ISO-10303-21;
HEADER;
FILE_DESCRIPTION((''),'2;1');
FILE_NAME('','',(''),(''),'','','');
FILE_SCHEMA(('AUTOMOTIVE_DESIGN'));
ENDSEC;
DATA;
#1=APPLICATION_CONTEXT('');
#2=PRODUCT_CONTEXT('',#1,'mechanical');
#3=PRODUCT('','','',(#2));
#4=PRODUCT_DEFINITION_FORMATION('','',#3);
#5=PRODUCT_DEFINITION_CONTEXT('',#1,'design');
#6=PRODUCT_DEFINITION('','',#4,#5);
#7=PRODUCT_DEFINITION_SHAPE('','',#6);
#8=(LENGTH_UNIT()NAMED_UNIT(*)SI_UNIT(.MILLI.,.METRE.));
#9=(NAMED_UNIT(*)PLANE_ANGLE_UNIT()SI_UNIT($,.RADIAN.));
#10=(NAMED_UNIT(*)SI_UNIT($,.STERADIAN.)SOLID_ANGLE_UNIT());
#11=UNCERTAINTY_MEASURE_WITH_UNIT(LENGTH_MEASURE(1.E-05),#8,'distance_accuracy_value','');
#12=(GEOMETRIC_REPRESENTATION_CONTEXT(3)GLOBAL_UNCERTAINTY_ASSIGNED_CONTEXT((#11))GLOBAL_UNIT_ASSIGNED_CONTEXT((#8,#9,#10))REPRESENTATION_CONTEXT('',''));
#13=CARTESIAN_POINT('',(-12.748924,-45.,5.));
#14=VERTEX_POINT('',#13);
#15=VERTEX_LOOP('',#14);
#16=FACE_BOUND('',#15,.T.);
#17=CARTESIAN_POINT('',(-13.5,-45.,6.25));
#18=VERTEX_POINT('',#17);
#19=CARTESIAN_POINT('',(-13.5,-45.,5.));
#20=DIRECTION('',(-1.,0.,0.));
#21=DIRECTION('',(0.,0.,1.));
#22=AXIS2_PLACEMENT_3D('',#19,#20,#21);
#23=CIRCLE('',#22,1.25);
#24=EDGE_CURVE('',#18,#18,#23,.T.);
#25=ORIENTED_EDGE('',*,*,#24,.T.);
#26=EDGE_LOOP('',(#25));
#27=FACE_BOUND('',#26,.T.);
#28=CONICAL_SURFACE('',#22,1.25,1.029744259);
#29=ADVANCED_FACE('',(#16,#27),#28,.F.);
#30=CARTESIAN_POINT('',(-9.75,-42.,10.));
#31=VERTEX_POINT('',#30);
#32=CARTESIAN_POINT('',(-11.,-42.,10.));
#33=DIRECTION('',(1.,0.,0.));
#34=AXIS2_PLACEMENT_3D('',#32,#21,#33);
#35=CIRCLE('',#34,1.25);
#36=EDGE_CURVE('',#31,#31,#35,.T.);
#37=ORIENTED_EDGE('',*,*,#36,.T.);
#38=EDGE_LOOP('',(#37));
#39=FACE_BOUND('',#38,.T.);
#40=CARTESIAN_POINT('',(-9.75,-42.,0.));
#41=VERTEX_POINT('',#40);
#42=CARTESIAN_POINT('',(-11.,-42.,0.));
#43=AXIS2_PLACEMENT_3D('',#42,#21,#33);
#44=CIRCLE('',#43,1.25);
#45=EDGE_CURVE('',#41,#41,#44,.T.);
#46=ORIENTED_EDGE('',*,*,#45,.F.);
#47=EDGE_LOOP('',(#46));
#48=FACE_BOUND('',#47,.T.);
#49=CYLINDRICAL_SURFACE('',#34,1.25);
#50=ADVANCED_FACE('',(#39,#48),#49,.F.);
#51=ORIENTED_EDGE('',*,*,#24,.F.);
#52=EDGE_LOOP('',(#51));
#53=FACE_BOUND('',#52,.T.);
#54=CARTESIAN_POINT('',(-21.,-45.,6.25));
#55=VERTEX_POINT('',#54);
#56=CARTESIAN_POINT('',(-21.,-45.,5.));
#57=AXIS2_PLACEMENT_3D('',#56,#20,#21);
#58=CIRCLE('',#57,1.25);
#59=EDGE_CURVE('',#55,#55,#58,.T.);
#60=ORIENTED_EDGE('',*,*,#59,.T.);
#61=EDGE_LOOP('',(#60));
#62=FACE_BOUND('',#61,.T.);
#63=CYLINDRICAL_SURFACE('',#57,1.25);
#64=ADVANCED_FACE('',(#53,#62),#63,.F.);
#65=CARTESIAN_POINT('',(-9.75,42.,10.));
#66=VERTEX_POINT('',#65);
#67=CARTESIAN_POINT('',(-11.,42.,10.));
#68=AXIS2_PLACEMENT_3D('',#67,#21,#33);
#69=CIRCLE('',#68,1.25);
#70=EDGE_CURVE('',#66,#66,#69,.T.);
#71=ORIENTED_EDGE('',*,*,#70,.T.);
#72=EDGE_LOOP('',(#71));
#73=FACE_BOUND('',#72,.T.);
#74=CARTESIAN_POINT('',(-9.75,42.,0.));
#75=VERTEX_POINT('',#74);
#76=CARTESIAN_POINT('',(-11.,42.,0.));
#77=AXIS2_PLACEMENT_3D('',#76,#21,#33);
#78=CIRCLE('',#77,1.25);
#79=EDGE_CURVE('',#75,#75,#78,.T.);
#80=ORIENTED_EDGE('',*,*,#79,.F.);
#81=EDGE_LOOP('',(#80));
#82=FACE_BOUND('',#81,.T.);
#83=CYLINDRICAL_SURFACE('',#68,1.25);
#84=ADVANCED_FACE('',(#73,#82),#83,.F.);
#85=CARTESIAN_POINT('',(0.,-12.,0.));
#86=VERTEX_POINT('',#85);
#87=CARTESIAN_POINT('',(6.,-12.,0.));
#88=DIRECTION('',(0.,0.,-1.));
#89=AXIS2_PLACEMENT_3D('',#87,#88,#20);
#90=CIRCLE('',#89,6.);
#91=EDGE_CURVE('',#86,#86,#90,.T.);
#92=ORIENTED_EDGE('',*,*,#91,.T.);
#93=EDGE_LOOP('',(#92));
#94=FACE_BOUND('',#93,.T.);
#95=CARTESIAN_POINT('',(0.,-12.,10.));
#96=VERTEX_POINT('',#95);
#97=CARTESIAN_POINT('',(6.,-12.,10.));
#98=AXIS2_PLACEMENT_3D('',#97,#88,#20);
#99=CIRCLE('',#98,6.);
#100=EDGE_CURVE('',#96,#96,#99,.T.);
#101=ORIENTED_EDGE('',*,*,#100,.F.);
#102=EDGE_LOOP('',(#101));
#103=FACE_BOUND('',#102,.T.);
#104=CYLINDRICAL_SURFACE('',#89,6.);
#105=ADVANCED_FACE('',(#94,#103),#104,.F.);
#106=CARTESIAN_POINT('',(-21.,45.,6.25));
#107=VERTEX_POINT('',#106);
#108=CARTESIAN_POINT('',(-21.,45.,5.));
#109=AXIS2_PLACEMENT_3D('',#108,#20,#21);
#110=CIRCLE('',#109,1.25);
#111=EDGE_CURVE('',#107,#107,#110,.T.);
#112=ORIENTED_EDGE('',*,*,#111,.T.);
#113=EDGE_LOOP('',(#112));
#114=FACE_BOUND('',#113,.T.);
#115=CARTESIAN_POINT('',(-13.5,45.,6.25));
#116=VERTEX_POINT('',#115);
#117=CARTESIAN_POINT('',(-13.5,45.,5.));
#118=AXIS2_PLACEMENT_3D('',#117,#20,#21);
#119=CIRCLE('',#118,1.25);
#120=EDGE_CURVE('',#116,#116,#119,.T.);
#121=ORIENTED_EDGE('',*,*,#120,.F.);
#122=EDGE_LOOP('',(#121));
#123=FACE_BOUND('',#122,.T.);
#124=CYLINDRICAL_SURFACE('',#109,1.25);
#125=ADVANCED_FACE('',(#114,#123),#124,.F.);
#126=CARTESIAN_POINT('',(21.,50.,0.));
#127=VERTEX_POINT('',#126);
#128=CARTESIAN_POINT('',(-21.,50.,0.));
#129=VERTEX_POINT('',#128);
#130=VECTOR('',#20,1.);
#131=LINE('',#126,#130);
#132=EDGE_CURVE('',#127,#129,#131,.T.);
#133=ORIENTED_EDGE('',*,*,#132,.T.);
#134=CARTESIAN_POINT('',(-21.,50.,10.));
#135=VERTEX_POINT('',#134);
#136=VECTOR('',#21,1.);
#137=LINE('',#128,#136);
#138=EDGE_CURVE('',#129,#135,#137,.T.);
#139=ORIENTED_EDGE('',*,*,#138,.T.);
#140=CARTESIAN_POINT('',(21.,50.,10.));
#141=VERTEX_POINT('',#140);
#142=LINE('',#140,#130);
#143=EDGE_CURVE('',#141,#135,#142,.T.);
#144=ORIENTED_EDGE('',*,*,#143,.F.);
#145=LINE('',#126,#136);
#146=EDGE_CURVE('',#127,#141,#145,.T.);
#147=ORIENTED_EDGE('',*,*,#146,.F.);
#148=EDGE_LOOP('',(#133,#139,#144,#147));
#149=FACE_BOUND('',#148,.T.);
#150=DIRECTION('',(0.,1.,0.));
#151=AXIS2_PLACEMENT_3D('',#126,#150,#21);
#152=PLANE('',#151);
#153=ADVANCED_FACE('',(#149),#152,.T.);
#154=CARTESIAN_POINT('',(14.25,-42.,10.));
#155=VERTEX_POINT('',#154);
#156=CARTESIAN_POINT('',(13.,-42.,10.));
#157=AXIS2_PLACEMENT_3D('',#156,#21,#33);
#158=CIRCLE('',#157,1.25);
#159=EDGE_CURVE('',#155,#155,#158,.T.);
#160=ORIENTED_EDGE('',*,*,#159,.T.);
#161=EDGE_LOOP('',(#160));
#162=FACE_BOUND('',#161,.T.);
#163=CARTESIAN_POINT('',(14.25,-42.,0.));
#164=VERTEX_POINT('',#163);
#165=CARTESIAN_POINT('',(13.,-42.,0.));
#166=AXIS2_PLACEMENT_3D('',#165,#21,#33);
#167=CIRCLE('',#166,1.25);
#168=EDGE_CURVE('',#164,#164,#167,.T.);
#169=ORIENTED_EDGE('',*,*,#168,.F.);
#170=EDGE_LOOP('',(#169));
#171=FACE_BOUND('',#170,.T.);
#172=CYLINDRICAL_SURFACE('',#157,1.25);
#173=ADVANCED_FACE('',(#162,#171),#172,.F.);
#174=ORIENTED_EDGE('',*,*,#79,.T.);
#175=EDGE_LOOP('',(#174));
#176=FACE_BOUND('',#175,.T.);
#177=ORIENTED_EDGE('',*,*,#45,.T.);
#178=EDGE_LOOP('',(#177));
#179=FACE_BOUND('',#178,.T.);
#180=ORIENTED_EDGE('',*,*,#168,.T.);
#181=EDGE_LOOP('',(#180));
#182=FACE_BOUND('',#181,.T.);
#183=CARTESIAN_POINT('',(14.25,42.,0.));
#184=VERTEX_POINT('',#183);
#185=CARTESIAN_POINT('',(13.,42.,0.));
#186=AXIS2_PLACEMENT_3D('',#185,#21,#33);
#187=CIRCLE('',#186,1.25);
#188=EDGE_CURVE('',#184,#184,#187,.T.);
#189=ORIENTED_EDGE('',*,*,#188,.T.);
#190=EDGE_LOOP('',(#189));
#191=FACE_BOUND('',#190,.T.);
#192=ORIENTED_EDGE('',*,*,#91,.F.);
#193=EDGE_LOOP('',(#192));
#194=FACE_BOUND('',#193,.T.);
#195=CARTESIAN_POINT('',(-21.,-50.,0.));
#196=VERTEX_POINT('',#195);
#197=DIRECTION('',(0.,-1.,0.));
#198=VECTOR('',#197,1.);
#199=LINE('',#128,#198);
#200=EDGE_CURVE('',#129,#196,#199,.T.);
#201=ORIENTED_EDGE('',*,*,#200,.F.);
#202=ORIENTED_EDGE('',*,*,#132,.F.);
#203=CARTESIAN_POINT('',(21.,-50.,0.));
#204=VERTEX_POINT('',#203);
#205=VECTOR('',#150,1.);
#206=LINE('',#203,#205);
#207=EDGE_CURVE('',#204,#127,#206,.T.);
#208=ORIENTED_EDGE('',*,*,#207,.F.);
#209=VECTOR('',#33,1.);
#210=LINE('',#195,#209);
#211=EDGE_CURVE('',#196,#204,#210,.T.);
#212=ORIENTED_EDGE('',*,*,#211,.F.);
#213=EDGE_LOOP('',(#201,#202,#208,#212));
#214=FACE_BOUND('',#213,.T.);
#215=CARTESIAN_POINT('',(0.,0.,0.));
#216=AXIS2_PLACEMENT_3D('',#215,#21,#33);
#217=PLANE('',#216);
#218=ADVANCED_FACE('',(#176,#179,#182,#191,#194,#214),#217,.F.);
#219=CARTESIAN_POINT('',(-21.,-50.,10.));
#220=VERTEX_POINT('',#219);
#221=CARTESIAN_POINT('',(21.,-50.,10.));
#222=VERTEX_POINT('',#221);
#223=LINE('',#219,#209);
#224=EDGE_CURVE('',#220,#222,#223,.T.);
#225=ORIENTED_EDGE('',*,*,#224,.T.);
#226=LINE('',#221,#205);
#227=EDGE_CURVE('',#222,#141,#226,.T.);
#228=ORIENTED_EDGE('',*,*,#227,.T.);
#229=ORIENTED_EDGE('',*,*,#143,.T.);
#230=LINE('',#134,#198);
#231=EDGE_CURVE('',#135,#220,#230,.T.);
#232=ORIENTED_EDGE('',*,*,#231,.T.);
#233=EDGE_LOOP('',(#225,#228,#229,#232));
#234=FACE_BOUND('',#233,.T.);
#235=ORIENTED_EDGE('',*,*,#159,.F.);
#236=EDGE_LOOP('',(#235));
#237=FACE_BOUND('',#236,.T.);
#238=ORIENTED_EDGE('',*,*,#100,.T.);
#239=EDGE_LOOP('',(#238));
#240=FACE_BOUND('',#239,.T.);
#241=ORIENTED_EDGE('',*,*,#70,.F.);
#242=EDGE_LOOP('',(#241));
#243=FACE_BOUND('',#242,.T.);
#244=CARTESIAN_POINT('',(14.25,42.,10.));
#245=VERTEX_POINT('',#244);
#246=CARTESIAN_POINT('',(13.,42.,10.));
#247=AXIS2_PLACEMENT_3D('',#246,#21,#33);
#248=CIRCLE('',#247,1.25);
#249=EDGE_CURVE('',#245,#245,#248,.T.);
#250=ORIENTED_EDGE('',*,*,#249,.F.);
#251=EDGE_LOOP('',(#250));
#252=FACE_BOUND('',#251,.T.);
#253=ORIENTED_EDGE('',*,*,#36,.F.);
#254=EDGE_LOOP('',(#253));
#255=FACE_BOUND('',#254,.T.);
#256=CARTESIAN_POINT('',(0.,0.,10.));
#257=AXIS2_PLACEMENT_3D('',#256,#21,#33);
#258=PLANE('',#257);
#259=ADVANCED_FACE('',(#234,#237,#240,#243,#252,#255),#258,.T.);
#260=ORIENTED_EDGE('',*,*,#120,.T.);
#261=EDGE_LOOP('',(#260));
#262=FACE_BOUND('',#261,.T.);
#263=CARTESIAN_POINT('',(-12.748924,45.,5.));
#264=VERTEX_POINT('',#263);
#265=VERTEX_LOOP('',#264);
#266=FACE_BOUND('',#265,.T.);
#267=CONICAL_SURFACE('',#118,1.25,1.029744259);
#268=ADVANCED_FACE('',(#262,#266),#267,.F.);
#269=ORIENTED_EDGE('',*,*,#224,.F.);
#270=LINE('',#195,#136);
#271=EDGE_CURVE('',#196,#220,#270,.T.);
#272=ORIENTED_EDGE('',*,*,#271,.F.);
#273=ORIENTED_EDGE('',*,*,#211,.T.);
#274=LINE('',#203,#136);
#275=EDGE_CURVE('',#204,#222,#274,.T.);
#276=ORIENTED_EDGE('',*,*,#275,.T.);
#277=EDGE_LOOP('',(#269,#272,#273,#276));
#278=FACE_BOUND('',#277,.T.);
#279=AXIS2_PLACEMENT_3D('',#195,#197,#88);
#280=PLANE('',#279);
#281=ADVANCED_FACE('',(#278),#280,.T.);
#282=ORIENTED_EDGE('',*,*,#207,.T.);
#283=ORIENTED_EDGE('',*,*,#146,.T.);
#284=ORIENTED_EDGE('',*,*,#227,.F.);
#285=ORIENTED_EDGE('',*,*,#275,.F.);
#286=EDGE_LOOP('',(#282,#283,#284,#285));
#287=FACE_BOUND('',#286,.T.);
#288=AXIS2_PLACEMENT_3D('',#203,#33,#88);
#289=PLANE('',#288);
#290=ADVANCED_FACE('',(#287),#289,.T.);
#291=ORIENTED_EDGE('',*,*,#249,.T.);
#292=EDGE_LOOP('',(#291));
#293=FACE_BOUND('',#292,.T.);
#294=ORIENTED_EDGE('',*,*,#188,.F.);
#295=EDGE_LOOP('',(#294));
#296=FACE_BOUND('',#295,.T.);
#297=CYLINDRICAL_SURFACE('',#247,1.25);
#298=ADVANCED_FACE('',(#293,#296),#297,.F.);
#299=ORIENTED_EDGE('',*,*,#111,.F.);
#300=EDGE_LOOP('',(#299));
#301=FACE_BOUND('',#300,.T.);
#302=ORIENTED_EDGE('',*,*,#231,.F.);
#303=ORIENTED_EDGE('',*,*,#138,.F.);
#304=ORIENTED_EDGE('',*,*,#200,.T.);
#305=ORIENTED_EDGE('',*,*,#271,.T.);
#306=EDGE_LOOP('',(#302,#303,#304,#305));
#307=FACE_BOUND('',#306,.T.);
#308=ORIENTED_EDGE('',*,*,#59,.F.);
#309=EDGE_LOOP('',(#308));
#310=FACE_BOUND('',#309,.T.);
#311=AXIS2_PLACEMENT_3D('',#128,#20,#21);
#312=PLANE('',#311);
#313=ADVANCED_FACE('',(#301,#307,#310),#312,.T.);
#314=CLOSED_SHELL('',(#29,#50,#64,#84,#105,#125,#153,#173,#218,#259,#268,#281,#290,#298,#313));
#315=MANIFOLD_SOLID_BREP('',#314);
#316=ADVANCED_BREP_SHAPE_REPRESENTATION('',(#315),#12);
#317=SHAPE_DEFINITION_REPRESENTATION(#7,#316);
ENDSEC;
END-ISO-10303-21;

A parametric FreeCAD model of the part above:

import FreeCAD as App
import Part
import Sketcher

V = App.Vector

doc = App.newDocument("Part")
body = doc.addObject("PartDesign::Body", "Body")

# Sketch on XY plane
sketch1 = body.newObject("Sketcher::SketchObject", "Sketch")
sketch1.AttachmentSupport = (doc.getObject("XY_Plane"), [""])
sketch1.MapMode = "FlatFace"
sketch1.AttachmentOffset = App.Placement(V(0, 0, 10), App.Rotation())
sketch1.addGeometry([
    Part.LineSegment(V(-21, 50, 0), V(-21, -50, 0)),
    Part.LineSegment(V(-21, -50, 0), V(21, -50, 0)),
    Part.LineSegment(V(21, -50, 0), V(21, 50, 0)),
    Part.LineSegment(V(21, 50, 0), V(-21, 50, 0)),
], False)
sketch1.addConstraint([
    Sketcher.Constraint("Coincident", 0, 2, 1, 1),
    Sketcher.Constraint("Coincident", 1, 2, 2, 1),
    Sketcher.Constraint("Coincident", 2, 2, 3, 1),
    Sketcher.Constraint("Coincident", 3, 2, 0, 1),
    Sketcher.Constraint("Vertical", 0),
    Sketcher.Constraint("Horizontal", 1),
    Sketcher.Constraint("Vertical", 2),
    Sketcher.Constraint("Horizontal", 3),
    Sketcher.Constraint("Symmetric", 0, 2, 2, 2, -1, 1),
    Sketcher.Constraint("DistanceX", 1, 1, 1, 2, 42.0),
    Sketcher.Constraint("DistanceY", 0, 2, 0, 1, 100.0),
])
pad1 = body.newObject("PartDesign::Pad", "Pad")
pad1.Profile = sketch1
pad1.Length = 10
pad1.Reversed = True

# Sketch on XY plane
sketch2 = body.newObject("Sketcher::SketchObject", "Sketch001")
sketch2.AttachmentSupport = (doc.getObject("XY_Plane"), [""])
sketch2.MapMode = "FlatFace"
sketch2.addGeometry(Part.Circle(V(6, -12, 0), V(0, 0, 1), 6), False)
sketch2.addConstraint([
    Sketcher.Constraint("Diameter", 0, 12.0),
    Sketcher.Constraint("DistanceX", -1, 1, 0, 3, 6.0),
    Sketcher.Constraint("DistanceY", 0, 3, -1, 1, 12.0),
])
doc.recompute()
hole = body.newObject("PartDesign::Hole", "Hole")
hole.Profile = sketch2
hole.ThreadType = "None"
hole.Diameter = 12
hole.DepthType = "ThroughAll"
hole.Reversed = True

# Sketch on XY plane
sketch3 = body.newObject("Sketcher::SketchObject", "Sketch002")
sketch3.AttachmentSupport = (doc.getObject("XY_Plane"), [""])
sketch3.MapMode = "FlatFace"
sketch3.AttachmentOffset = App.Placement(V(0, 0, 10), App.Rotation())
sketch3.addGeometry([
    Part.Circle(V(13, 42, 0), V(0, 0, 1), 1.25),
    Part.Circle(V(-11, 42, 0), V(0, 0, 1), 1.25),
    Part.Circle(V(-11, -42, 0), V(0, 0, 1), 1.25),
    Part.Circle(V(13, -42, 0), V(0, 0, 1), 1.25),
], False)
sketch3.addConstraint([
    Sketcher.Constraint("Equal", 0, 1),
    Sketcher.Constraint("Equal", 1, 2),
    Sketcher.Constraint("Equal", 2, 3),
    Sketcher.Constraint("Symmetric", 1, 3, 2, 3, -1),
    Sketcher.Constraint("Symmetric", 0, 3, 3, 3, -1),
    Sketcher.Constraint("Horizontal", 0, 3, 1, 3),
    Sketcher.Constraint("Diameter", 0, 2.5),
    Sketcher.Constraint("DistanceX", -1, 1, 0, 3, 13.0),
    Sketcher.Constraint("DistanceY", -1, 1, 0, 3, 42.0),
    Sketcher.Constraint("DistanceX", 1, 3, -1, 1, 11.0),
])
doc.recompute()
hole2 = body.newObject("PartDesign::Hole", "Hole001")
hole2.Profile = sketch3
hole2.ThreadType = "None"
hole2.Diameter = 2.5
hole2.DepthType = "ThroughAll"

# Sketch on YZ plane
sketch4 = body.newObject("Sketcher::SketchObject", "Sketch003")
sketch4.AttachmentSupport = (doc.getObject("YZ_Plane"), [""])
sketch4.MapMode = "FlatFace"
sketch4.AttachmentOffset = App.Placement(V(0, 0, -21), App.Rotation())
sketch4.addGeometry([
    Part.Circle(V(45, 5, 0), V(0, 0, 1), 1.25),
    Part.Circle(V(-45, 5, 0), V(0, 0, 1), 1.25),
], False)
sketch4.addConstraint([
    Sketcher.Constraint("Equal", 0, 1),
    Sketcher.Constraint("Symmetric", 0, 3, 1, 3, -2),
    Sketcher.Constraint("Diameter", 0, 2.5),
    Sketcher.Constraint("DistanceX", -1, 1, 0, 3, 45.0),
    Sketcher.Constraint("DistanceY", -1, 1, 0, 3, 5.0),
])
doc.recompute()
hole3 = body.newObject("PartDesign::Hole", "Hole002")
hole3.Profile = sketch4
hole3.ThreadType = "None"
hole3.Diameter = 2.5
hole3.DepthType = "Dimension"
hole3.Depth = 7.5
hole3.DrillPoint = "Angled"
hole3.DrillPointAngle = 118
hole3.Reversed = True

doc.recompute()
